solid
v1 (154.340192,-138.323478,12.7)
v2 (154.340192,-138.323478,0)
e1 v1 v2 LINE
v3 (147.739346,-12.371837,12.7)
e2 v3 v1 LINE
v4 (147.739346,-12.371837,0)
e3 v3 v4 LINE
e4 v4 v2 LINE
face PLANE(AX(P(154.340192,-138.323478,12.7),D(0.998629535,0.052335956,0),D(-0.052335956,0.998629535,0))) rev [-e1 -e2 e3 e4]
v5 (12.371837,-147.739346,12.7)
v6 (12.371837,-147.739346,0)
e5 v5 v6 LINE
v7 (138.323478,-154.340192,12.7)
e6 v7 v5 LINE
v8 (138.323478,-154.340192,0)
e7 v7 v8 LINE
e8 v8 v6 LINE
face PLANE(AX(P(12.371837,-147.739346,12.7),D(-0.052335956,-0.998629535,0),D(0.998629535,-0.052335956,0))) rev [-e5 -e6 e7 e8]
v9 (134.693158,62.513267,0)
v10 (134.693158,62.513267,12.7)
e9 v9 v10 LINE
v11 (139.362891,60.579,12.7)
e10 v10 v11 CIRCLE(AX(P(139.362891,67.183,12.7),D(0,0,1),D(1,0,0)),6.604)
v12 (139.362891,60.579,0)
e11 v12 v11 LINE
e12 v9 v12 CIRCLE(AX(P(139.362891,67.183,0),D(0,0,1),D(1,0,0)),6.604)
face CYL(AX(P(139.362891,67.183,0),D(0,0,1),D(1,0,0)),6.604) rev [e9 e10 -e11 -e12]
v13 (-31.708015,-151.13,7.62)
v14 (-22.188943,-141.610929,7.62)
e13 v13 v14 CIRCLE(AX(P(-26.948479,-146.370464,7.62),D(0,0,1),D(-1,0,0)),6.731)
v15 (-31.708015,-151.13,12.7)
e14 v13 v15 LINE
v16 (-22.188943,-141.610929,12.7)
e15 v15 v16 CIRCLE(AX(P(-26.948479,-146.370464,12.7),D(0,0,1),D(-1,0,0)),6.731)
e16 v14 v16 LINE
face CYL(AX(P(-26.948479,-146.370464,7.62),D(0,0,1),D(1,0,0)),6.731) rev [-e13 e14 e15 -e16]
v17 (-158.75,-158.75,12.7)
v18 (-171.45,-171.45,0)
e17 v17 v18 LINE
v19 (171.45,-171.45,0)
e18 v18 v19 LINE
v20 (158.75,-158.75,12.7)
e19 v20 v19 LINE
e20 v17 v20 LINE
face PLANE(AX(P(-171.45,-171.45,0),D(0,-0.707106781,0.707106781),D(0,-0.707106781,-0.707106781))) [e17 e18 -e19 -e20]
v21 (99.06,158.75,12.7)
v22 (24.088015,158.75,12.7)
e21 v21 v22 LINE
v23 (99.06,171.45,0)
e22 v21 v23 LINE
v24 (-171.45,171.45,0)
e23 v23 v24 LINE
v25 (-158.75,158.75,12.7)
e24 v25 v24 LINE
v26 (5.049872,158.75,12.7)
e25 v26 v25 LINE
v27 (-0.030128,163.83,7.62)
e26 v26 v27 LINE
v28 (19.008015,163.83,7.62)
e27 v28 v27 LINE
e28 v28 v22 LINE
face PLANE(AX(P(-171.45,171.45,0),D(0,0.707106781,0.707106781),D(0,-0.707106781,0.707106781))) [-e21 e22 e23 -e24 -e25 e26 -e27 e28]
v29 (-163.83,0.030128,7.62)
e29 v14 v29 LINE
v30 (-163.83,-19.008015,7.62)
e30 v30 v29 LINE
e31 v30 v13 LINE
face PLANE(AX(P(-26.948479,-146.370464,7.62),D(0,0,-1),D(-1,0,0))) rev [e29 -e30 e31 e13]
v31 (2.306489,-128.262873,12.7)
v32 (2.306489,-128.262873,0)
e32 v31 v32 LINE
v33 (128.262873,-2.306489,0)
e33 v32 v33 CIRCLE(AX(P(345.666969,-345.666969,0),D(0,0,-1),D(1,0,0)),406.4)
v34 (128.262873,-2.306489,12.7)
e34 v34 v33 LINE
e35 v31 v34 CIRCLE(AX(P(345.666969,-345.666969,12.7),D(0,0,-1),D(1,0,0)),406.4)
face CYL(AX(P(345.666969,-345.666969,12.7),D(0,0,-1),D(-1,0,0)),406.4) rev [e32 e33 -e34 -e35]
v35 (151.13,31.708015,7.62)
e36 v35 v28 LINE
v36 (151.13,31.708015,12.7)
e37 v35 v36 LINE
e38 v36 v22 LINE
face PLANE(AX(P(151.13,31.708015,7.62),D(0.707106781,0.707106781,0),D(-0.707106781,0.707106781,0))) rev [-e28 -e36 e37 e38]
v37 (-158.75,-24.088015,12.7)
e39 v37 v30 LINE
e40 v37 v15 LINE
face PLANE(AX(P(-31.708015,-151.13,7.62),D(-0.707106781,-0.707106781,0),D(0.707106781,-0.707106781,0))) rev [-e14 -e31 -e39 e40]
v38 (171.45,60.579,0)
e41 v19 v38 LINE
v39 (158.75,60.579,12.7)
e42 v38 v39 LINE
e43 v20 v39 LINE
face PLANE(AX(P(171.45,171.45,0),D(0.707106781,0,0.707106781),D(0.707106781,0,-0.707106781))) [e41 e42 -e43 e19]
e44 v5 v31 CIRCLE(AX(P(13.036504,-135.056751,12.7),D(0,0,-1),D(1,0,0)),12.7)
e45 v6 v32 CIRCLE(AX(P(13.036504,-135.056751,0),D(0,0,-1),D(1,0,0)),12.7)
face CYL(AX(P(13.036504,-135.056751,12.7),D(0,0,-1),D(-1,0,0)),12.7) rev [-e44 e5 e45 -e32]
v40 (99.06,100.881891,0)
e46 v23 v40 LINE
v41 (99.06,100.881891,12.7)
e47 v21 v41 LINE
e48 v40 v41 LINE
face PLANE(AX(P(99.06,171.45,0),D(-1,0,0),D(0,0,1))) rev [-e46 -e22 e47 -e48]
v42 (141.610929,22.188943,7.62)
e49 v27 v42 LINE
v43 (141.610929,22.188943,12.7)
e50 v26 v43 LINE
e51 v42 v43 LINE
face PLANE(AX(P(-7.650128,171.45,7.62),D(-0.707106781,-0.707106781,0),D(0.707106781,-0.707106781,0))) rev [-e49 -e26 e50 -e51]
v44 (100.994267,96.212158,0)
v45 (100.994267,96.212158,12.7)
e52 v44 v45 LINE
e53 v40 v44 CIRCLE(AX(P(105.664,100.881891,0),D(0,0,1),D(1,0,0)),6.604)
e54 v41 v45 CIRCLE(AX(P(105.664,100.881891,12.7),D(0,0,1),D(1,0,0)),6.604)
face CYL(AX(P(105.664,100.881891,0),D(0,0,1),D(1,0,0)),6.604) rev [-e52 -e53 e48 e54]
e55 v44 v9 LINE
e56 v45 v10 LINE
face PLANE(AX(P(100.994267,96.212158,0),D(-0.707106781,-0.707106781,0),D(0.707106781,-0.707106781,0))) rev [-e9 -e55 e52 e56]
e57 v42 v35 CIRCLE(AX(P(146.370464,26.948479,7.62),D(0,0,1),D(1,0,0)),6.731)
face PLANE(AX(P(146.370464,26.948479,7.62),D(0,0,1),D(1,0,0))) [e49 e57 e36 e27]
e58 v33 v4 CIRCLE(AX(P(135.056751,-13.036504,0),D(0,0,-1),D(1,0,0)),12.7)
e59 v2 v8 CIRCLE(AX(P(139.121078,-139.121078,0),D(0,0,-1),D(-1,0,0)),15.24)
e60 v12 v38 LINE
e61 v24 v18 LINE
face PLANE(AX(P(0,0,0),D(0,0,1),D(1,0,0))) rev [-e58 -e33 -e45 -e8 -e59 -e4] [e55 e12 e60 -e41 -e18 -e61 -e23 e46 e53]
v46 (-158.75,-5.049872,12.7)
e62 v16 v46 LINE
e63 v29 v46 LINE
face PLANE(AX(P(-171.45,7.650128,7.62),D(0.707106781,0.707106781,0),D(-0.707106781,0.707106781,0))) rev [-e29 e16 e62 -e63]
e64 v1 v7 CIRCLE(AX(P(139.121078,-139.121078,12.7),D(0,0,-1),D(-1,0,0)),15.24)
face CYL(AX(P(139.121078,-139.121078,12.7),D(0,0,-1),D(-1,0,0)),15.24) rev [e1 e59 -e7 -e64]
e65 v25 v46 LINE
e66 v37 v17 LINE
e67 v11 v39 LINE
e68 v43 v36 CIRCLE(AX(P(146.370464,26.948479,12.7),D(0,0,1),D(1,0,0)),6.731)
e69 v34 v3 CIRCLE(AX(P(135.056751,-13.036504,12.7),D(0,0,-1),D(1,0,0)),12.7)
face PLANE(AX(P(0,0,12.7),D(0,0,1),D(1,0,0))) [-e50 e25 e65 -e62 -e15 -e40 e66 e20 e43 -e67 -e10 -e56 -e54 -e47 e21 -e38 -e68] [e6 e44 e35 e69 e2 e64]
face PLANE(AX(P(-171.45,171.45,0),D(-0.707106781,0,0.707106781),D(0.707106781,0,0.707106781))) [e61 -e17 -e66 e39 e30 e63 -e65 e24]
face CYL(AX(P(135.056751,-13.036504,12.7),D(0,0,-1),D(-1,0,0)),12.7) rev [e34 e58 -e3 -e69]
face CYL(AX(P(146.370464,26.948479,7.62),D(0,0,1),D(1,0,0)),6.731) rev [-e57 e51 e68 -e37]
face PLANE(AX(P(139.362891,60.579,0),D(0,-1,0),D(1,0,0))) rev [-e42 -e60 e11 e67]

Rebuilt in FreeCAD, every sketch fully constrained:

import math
import FreeCAD as App
import Part
import Sketcher
from FreeCAD import Vector
Q = App.Units.Quantity


def faces_at(feature, points):
    """Names of the faces that lie closest to the given points."""
    faces = feature.Shape.Faces
    near = lambda p: min(range(len(faces)), key=lambda i: faces[i].distToShape(Part.Vertex(*p))[0])
    return sorted({f"Face{near(p) + 1}" for p in points})

doc = App.newDocument("Part")
body = doc.addObject("PartDesign::Body", "Body")

# Sketch on XY plane
sketch1 = doc.addObject("Sketcher::SketchObject", "Sketch")
body.addObject(sketch1)
sketch1.AttachmentSupport = (doc.XY_Plane, [""])
sketch1.MapMode = "FlatFace"
sketch1.addGeometry([
    Part.LineSegment(Vector(-171, 171, 0), Vector(-171, -171, 0)),
    Part.LineSegment(Vector(-171, -171, 0), Vector(171, -171, 0)),
    Part.LineSegment(Vector(171, -171, 0), Vector(171, 171, 0)),
    Part.LineSegment(Vector(171, 171, 0), Vector(-171, 171, 0)),
], False)
sketch1.addConstraint([
    Sketcher.Constraint("Coincident", 0, 2, 1, 1),
    Sketcher.Constraint("Coincident", 1, 2, 2, 1),
    Sketcher.Constraint("Coincident", 2, 2, 3, 1),
    Sketcher.Constraint("Coincident", 3, 2, 0, 1),
    Sketcher.Constraint("Vertical", 0),
    Sketcher.Constraint("Horizontal", 1),
    Sketcher.Constraint("Vertical", 2),
    Sketcher.Constraint("Horizontal", 3),
    Sketcher.Constraint("Symmetric", 0, 2, 2, 2, -1, 1),
    Sketcher.Constraint("Equal", 3, 0),
    Sketcher.Constraint("DistanceX", 1, 1, 1, 2, Q("13.5 in")),
])
pad1 = doc.addObject("PartDesign::Pad", "Pad")
body.addObject(pad1)
pad1.Profile = sketch1
pad1.Length = Q("0.5 in")
doc.recompute()

draft = doc.addObject("PartDesign::Draft", "Draft")
body.addObject(draft)
draft.Base = (pad1, faces_at(pad1, [
    (-171.45, 0, 6.35),
    (0, -171.45, 6.35),
    (171.45, 0, 6.35),
    (0, 171.45, 6.35),
]))
draft.NeutralPlane = (doc.XY_Plane, [""])
draft.Angle = 45
draft.Reversed = False

# Sketch on XY plane
sketch2 = doc.addObject("Sketcher::SketchObject", "Sketch001")
body.addObject(sketch2)
sketch2.AttachmentSupport = (doc.XY_Plane, [""])
sketch2.MapMode = "FlatFace"
sketch2.AttachmentOffset = App.Placement(Vector(0, 0, 0.5 * 25.4), App.Rotation())
sketch2.addGeometry([
    Part.LineSegment(Vector(-22, -142, 0), Vector(-171, 8, 0)),  # 0
    Part.LineSegment(Vector(-171, 8, 0), Vector(-171, -11, 0)),  # 1
    Part.LineSegment(Vector(-171, -11, 0), Vector(-32, -151, 0)),  # 2
    Part.ArcOfCircle(Part.Circle(Vector(-27, -146, 0), Vector(0, 0, 1), 7), math.radians(-135), math.radians(45)),  # 3
    Part.LineSegment(Vector(11, 171, 0), Vector(-8, 171, 0)),  # 4
    Part.LineSegment(Vector(-8, 171, 0), Vector(142, 22, 0)),  # 5
    Part.ArcOfCircle(Part.Circle(Vector(146, 27, 0), Vector(0, 0, 1), 7), math.radians(-135), math.radians(45)),  # 6
    Part.LineSegment(Vector(151, 32, 0), Vector(11, 171, 0)),  # 7
], False)
sketch2.addConstraint([
    Sketcher.Constraint("Coincident", 0, 2, 1, 1),
    Sketcher.Constraint("Coincident", 1, 2, 2, 1),
    Sketcher.Constraint("Tangent", 2, 2, 3, 1),
    Sketcher.Constraint("Tangent", 3, 2, 0, 1),
    Sketcher.Constraint("Coincident", 4, 2, 5, 1),
    Sketcher.Constraint("Tangent", 5, 2, 6, 1),
    Sketcher.Constraint("Tangent", 6, 2, 7, 1),
    Sketcher.Constraint("Coincident", 7, 2, 4, 1),
    Sketcher.Constraint("Vertical", 1),
    Sketcher.Constraint("Horizontal", 4),
    Sketcher.Constraint("Equal", 3, 6),
    Sketcher.Constraint("Parallel", 0, 2),
    Sketcher.Constraint("Parallel", 2, 5),
    Sketcher.Constraint("Parallel", 5, 7),
    Sketcher.Constraint("Equal", 4, 1),
    Sketcher.Constraint("Equal", 0, 5),
    Sketcher.Constraint("Radius", 3, Q("0.265 in")),
    Sketcher.Constraint("DistanceX", 0, 2, -1, 1, Q("6.75 in")),
    Sketcher.Constraint("DistanceY", 2, 2, -1, 1, Q("5.95 in")),
    Sketcher.Constraint("DistanceY", -1, 1, 4, 2, Q("6.75 in")),
    Sketcher.Constraint("DistanceX", -1, 1, 6, 2, Q("5.95 in")),
    Sketcher.Constraint("Distance", 0, Q("211.087011 mm")),
])
pocket1 = doc.addObject("PartDesign::Pocket", "Pocket")
body.addObject(pocket1)
pocket1.Profile = sketch2
pocket1.Length = Q("0.2 in")

# Sketch on XY plane
sketch3 = doc.addObject("Sketcher::SketchObject", "Sketch002")
body.addObject(sketch3)
sketch3.AttachmentSupport = (doc.XY_Plane, [""])
sketch3.MapMode = "FlatFace"
sketch3.AttachmentOffset = App.Placement(Vector(0, 0, 0.5 * 25.4), App.Rotation())
sketch3.addGeometry([
    Part.LineSegment(Vector(99, 171, 0), Vector(99, 101, 0)),  # 0
    Part.ArcOfCircle(Part.Circle(Vector(106, 101, 0), Vector(0, 0, 1), 7), math.radians(180), math.radians(225)),  # 1
    Part.LineSegment(Vector(101, 96, 0), Vector(135, 63, 0)),  # 2
    Part.ArcOfCircle(Part.Circle(Vector(139, 67, 0), Vector(0, 0, 1), 7), math.radians(-135), math.radians(-90)),  # 3
    Part.LineSegment(Vector(139, 61, 0), Vector(171, 61, 0)),  # 4
    Part.LineSegment(Vector(171, 61, 0), Vector(171, 171, 0)),  # 5
    Part.LineSegment(Vector(171, 171, 0), Vector(99, 171, 0)),  # 6
], False)
sketch3.addConstraint([
    Sketcher.Constraint("Tangent", 0, 2, 1, 1),
    Sketcher.Constraint("Tangent", 1, 2, 2, 1),
    Sketcher.Constraint("Tangent", 2, 2, 3, 1),
    Sketcher.Constraint("Tangent", 3, 2, 4, 1),
    Sketcher.Constraint("Coincident", 4, 2, 5, 1),
    Sketcher.Constraint("Coincident", 5, 2, 6, 1),
    Sketcher.Constraint("Coincident", 6, 2, 0, 1),
    Sketcher.Constraint("Vertical", 0),
    Sketcher.Constraint("Horizontal", 4),
    Sketcher.Constraint("Vertical", 5),
    Sketcher.Constraint("Horizontal", 6),
    Sketcher.Constraint("Equal", 1, 3),
    Sketcher.Constraint("Radius", 1, Q("0.26 in")),
    Sketcher.Constraint("Angle", 2, Q("-45 deg")),
    Sketcher.Constraint("DistanceX", 6, 2, 6, 1, Q("2.85 in")),
    Sketcher.Constraint("DistanceX", -1, 1, 0, 2, Q("3.9 in")),
    Sketcher.Constraint("DistanceY", 5, 1, 5, 2, Q("4.365 in")),
    Sketcher.Constraint("DistanceY", -1, 1, 5, 2, Q("6.75 in")),
    Sketcher.Constraint("DistanceX", 4, 1, 4, 2, Q("32.087109 mm")),
])
pocket2 = doc.addObject("PartDesign::Pocket", "Pocket001")
body.addObject(pocket2)
pocket2.Profile = sketch3
pocket2.Type = "ThroughAll"

# Sketch on XY plane
sketch4 = doc.addObject("Sketcher::SketchObject", "Sketch003")
body.addObject(sketch4)
sketch4.AttachmentSupport = (doc.XY_Plane, [""])
sketch4.MapMode = "FlatFace"
sketch4.addGeometry([
    Part.LineSegment(Vector(148, -12, 0), Vector(154, -138, 0)),  # 0
    Part.ArcOfCircle(Part.Circle(Vector(139, -139, 0), Vector(0, 0, 1), 15), math.radians(-93), math.radians(3)),  # 1
    Part.LineSegment(Vector(138, -154, 0), Vector(12, -148, 0)),  # 2
    Part.ArcOfCircle(Part.Circle(Vector(13, -135, 0), Vector(0, 0, 1), 13), math.radians(148), math.radians(267)),  # 3
    Part.ArcOfCircle(Part.Circle(Vector(346, -346, 0), Vector(0, 0, 1), 406), math.radians(122), math.radians(148)),  # 4
    Part.ArcOfCircle(Part.Circle(Vector(135, -13, 0), Vector(0, 0, 1), 13), math.radians(3), math.radians(122)),  # 5
], False)
sketch4.addConstraint([
    Sketcher.Constraint("Tangent", 0, 2, 1, 2),
    Sketcher.Constraint("Tangent", 1, 1, 2, 1),
    Sketcher.Constraint("Tangent", 2, 2, 3, 2),
    Sketcher.Constraint("Tangent", 3, 1, 4, 2),
    Sketcher.Constraint("Tangent", 4, 1, 5, 2),
    Sketcher.Constraint("Tangent", 5, 1, 0, 1),
    Sketcher.Constraint("Equal", 3, 5),
    Sketcher.Constraint("Equal", 0, 2),
    Sketcher.Constraint("Radius", 4, Q("16 in")),
    Sketcher.Constraint("Radius", 1, Q("0.6 in")),
    Sketcher.Constraint("Radius", 3, Q("0.5 in")),
    Sketcher.Constraint("Angle", 0, Q("-87 deg")),
    Sketcher.Constraint("Angle", 2, Q("177 deg")),
    Sketcher.Constraint("Distance", 0, Q("126.12449 mm")),
    Sketcher.Constraint("DistanceY", 3, 3, -1, 1, Q("135.056751 mm")),
    Sketcher.Constraint("DistanceX", -1, 1, 4, 3, Q("345.666969 mm")),
])
pocket3 = doc.addObject("PartDesign::Pocket", "Pocket002")
body.addObject(pocket3)
pocket3.Profile = sketch4
pocket3.Type = "ThroughAll"
pocket3.Reversed = True

doc.recompute()
